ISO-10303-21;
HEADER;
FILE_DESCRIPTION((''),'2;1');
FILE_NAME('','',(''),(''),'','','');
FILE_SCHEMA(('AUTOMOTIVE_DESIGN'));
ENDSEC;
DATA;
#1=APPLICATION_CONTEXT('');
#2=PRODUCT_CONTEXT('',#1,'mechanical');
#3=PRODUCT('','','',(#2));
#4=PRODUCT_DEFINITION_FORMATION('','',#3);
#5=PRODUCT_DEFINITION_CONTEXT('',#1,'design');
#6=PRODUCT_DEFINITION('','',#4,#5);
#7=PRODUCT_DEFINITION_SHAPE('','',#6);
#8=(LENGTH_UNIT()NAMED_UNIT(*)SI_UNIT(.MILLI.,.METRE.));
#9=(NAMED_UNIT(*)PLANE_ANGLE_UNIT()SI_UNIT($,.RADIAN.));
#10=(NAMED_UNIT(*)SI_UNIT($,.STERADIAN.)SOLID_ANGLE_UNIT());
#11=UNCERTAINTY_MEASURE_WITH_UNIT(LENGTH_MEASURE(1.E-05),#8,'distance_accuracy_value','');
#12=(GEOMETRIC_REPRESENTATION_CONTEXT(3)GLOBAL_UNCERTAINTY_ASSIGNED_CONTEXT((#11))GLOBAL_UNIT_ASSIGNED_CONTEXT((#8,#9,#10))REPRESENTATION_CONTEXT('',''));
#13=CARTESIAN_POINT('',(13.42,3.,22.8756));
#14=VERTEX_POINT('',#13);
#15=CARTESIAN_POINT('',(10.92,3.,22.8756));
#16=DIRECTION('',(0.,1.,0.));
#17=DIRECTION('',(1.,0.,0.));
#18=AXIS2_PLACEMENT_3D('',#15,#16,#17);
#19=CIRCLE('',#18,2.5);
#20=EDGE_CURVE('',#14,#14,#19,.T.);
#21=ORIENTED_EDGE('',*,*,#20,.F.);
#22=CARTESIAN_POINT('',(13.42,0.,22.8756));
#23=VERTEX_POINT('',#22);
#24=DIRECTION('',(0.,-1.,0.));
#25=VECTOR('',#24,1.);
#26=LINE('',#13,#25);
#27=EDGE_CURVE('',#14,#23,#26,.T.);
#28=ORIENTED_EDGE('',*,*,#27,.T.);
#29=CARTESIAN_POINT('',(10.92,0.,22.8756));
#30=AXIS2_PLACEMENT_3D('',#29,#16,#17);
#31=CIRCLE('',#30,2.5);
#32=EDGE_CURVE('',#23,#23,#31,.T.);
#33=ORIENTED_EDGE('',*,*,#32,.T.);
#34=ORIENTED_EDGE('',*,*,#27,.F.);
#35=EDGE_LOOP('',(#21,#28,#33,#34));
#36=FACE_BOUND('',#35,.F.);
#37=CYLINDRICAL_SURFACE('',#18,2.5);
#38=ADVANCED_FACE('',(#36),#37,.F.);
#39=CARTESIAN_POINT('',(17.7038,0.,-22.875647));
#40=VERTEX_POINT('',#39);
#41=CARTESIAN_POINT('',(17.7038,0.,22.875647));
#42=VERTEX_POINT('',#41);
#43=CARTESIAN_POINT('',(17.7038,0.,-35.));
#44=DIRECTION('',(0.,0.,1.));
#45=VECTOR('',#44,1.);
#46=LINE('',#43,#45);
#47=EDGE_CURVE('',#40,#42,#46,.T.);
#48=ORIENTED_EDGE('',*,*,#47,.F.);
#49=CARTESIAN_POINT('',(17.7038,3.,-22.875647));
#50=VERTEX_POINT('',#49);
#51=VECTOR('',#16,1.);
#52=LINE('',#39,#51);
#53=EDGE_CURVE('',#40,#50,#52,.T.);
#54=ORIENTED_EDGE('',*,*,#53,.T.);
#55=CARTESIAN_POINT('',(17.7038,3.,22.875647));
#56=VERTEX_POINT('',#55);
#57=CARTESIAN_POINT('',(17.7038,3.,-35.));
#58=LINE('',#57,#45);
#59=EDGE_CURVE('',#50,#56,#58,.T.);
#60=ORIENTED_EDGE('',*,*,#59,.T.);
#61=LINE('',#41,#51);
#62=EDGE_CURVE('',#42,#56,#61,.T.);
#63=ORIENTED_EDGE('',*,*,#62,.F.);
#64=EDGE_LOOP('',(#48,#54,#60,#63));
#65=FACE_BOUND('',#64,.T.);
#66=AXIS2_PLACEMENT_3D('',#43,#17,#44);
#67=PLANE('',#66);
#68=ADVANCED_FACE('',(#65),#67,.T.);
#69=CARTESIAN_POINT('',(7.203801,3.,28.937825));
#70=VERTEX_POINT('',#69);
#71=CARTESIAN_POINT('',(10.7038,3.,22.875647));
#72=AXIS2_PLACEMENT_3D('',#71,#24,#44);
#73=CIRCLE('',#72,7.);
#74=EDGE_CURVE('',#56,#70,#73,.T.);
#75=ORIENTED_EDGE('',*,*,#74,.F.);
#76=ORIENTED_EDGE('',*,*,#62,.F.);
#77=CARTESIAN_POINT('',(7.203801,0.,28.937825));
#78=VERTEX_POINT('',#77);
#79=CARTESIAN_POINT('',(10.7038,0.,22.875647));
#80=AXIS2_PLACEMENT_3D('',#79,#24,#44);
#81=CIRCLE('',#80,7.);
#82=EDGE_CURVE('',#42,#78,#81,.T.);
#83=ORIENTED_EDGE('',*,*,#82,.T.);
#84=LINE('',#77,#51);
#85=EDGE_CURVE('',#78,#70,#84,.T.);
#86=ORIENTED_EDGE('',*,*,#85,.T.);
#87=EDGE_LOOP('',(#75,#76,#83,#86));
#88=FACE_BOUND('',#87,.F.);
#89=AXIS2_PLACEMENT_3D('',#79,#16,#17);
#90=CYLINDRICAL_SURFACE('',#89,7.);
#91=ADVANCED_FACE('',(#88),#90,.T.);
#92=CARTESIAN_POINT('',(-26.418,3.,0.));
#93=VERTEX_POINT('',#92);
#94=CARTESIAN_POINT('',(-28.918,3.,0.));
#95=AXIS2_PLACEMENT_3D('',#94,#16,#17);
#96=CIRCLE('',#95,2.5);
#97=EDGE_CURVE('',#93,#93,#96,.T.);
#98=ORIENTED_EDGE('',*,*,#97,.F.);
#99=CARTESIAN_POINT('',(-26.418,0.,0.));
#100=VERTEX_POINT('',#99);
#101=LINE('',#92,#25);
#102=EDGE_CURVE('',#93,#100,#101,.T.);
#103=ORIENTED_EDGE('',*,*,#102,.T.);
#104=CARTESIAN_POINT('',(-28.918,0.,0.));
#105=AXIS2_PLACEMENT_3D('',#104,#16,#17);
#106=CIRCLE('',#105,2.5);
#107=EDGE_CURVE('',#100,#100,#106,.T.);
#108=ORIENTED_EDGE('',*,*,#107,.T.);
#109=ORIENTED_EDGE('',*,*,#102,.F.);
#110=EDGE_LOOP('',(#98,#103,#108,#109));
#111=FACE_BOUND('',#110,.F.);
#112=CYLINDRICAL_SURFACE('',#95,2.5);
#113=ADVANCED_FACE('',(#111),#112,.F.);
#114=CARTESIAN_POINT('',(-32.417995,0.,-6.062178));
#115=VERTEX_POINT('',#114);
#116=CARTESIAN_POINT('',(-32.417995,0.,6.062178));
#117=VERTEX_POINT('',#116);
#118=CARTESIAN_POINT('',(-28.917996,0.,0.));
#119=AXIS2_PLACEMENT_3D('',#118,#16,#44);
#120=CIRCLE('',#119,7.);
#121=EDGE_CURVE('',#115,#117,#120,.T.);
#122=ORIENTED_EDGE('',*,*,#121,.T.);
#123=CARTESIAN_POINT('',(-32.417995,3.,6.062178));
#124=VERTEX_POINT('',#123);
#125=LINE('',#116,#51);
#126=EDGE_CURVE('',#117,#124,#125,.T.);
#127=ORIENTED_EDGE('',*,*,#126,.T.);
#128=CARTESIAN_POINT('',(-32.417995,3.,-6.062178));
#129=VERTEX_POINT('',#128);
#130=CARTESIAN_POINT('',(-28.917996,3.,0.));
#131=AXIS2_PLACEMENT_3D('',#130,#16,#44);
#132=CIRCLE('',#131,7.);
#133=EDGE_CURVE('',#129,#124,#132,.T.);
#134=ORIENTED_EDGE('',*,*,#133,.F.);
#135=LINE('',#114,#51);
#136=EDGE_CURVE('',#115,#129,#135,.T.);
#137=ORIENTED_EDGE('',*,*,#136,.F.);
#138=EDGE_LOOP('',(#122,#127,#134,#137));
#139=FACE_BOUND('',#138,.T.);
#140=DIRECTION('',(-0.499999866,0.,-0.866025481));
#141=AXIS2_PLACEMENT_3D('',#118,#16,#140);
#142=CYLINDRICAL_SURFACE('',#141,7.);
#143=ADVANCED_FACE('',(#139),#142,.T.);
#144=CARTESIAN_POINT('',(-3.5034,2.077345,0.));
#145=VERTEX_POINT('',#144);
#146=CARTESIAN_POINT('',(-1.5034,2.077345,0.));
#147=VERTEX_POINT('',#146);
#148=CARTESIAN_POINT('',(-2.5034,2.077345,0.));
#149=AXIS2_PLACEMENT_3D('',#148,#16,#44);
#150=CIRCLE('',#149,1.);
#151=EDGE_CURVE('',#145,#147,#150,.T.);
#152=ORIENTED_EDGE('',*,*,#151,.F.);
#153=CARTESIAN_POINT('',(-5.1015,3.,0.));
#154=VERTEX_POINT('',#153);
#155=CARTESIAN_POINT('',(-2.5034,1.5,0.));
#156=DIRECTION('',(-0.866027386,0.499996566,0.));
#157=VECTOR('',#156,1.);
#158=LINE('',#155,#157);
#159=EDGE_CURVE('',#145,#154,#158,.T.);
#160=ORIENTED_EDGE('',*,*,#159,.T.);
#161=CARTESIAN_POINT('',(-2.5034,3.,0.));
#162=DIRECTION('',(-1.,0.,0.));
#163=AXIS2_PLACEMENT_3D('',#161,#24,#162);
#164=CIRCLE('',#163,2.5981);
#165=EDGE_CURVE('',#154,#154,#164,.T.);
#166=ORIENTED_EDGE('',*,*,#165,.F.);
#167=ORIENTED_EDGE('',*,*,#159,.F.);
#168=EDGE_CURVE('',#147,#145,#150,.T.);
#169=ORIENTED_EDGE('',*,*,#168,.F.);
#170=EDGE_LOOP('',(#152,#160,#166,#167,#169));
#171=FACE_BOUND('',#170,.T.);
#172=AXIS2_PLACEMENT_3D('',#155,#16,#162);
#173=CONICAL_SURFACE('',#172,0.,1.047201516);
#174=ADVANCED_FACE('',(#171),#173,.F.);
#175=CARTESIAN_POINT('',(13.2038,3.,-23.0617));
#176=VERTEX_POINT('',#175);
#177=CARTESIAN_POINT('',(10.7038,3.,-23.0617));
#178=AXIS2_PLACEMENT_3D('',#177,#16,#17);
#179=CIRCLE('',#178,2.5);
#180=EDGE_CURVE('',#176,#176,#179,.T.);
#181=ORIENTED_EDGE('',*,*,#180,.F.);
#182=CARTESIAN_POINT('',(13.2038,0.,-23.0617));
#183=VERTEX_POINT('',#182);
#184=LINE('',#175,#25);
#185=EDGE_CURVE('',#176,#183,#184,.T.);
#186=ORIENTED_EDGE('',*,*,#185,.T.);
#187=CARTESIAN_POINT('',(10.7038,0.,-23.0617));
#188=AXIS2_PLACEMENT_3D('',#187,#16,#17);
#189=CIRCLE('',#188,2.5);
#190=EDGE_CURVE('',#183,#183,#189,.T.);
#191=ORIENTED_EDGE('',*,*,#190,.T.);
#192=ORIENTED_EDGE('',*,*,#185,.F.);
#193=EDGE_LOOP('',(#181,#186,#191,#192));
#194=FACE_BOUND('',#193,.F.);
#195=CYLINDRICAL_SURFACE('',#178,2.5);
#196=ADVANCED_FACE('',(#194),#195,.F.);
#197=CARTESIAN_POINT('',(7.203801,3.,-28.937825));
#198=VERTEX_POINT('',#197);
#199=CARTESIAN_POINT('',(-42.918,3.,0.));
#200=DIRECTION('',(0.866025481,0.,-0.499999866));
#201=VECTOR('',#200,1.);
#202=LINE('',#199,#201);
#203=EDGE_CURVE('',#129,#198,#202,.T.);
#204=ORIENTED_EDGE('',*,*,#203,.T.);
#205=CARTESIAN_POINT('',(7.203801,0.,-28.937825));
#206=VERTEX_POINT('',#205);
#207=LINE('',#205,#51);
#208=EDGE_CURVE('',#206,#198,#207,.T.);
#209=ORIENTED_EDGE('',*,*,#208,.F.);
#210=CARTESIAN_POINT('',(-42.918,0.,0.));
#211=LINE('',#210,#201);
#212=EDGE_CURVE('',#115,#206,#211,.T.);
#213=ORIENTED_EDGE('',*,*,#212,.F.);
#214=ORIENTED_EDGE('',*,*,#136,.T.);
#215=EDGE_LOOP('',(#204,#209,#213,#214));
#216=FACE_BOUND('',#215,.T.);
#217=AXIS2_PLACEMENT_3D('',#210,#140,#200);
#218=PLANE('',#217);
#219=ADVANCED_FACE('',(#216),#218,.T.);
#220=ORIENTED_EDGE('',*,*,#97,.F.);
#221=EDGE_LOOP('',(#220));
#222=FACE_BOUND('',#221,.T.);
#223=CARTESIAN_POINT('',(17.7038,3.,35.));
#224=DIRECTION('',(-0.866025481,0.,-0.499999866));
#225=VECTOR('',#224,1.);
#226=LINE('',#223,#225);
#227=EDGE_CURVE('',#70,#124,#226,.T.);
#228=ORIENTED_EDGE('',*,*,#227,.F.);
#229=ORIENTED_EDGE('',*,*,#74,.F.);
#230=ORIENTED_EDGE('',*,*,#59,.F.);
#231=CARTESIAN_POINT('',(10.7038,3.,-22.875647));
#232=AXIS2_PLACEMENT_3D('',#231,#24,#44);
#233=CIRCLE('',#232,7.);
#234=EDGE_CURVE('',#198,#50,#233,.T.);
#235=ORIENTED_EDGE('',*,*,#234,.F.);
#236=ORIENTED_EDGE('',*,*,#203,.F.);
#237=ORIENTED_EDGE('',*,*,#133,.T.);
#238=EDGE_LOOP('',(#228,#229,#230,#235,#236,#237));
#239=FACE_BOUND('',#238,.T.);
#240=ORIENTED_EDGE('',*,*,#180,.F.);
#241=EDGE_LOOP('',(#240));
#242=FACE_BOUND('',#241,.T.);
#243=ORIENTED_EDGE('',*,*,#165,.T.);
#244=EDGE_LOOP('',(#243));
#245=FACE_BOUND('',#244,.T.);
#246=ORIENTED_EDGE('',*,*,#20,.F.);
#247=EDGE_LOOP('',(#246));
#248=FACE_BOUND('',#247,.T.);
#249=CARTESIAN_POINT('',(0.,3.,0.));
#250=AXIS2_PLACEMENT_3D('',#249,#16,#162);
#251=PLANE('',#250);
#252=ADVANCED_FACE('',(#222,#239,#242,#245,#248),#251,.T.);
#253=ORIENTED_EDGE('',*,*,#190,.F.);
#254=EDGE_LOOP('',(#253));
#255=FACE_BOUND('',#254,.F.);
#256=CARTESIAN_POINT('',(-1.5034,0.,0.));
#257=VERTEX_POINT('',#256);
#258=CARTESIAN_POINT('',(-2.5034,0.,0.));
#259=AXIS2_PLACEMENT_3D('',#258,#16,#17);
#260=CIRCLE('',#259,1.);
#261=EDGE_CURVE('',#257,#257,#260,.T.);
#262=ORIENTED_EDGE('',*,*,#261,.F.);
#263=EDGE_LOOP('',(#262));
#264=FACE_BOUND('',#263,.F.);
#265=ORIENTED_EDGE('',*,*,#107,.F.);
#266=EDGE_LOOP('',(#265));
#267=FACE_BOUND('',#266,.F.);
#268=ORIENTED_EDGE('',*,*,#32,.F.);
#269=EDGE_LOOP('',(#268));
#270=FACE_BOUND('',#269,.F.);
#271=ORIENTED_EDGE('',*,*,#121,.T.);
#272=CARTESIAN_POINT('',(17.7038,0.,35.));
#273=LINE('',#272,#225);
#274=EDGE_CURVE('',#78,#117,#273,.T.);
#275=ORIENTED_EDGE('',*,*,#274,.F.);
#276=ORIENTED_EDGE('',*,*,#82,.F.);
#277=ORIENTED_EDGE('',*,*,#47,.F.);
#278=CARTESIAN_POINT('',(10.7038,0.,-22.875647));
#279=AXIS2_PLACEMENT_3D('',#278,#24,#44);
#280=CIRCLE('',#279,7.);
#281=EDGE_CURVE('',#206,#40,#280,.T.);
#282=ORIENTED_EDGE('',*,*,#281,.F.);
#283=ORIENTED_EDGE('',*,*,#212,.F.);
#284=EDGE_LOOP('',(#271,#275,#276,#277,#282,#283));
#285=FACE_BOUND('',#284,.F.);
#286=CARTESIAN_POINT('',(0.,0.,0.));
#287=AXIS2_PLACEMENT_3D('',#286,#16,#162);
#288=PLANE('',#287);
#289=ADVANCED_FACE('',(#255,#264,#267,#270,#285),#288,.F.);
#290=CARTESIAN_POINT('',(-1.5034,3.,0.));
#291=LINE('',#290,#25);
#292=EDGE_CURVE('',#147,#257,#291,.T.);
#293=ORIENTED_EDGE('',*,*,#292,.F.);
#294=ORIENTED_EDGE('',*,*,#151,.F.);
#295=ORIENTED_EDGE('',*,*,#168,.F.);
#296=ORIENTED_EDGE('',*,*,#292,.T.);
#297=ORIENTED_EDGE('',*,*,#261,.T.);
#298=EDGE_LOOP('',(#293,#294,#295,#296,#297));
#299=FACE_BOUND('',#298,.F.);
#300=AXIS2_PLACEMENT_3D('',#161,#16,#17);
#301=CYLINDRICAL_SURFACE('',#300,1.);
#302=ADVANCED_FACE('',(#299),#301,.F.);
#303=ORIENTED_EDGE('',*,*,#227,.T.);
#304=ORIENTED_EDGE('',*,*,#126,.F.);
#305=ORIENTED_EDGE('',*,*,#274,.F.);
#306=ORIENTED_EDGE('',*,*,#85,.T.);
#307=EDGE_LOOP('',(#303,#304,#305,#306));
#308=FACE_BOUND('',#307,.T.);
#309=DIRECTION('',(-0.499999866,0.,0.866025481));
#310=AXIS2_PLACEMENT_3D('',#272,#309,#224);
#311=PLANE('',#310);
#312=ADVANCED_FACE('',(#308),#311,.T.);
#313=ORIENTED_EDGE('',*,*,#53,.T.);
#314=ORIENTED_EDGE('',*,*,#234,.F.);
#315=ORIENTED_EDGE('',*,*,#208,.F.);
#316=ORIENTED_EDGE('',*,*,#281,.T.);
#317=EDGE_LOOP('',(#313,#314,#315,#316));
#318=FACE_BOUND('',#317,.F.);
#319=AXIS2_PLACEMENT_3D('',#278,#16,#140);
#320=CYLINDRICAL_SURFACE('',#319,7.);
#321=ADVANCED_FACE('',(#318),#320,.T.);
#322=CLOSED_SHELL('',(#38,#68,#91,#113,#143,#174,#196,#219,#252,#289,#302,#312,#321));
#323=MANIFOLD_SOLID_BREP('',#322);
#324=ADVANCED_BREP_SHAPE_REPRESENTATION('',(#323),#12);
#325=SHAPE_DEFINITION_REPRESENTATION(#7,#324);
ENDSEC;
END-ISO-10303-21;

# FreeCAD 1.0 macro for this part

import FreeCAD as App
import Part
import Sketcher

V = App.Vector
Q = App.Units.Quantity


def edges_at(feature, points):
    """Names of the edges that pass closest to the given points."""
    edges = feature.Shape.Edges
    near = lambda p: min(range(len(edges)), key=lambda i: edges[i].distToShape(Part.Vertex(*p))[0])
    return sorted({f"Edge{near(p) + 1}" for p in points})


def add_polygon(sketch, points):
    """Adds a closed chain of lines whose ends are joined by coincident constraints."""
    first, n = sketch.GeometryCount, len(points)
    for a, b in zip(points, points[1:] + points[:1]):
        sketch.addGeometry(Part.LineSegment(App.Vector(*a, 0), App.Vector(*b, 0)), False)
    for i in range(n):
        sketch.addConstraint(Sketcher.Constraint("Coincident", first + i, 2, first + (i + 1) % n, 1))

doc = App.newDocument("Part")
body = doc.addObject("PartDesign::Body", "Body")

sketch1 = body.newObject("Sketcher::SketchObject", "Sketch")
sketch1.AttachmentSupport = (doc.getObject("XZ_Plane"), [""])
sketch1.MapMode = "FlatFace"
add_polygon(sketch1, [(17.7038, -35), (-42.918, 0), (17.7038, 35)])
sketch1.addConstraint([
    Sketcher.Constraint("Vertical", 2),
    Sketcher.Constraint("PointOnObject", 0, 2, -1),
    Sketcher.Constraint("Equal", 0, 1),
    Sketcher.Constraint("DistanceY", 2, 2, 2, 1, Q("70 mm")),
    Sketcher.Constraint("Distance", 0, Q("70 mm")),
    Sketcher.Constraint("DistanceX", 0, 2, -1, 1, Q("42.918 mm")),
])
pad1 = body.newObject("PartDesign::Pad", "Pad")
pad1.Profile = sketch1
pad1.Length = 3
pad1.Reversed = True
doc.recompute()

fillet = body.newObject("PartDesign::Fillet", "Fillet")
fillet.Base = (pad1, edges_at(pad1, [(17.704, 1.5, 35), (17.704, 1.5, -35), (-42.918, 1.5, 0)]))
fillet.Radius = 7

sketch2 = body.newObject("Sketcher::SketchObject", "Sketch001")
sketch2.AttachmentSupport = (doc.getObject("XZ_Plane"), [""])
sketch2.MapMode = "FlatFace"
sketch2.AttachmentOffset = App.Placement(V(0, 0, -3), App.Rotation())
sketch2.addGeometry([
    Part.Circle(V(10.92, 22.8756, 0), V(0, 0, 1), 2.5),
    Part.Circle(V(-28.918, 0, 0), V(0, 0, 1), 2.5),
    Part.Circle(V(10.7038, -23.0617, 0), V(0, 0, 1), 2.5),
], False)
sketch2.addConstraint([
    Sketcher.Constraint("Equal", 0, 1),
    Sketcher.Constraint("Equal", 1, 2),
    Sketcher.Constraint("PointOnObject", 1, 3, -1),
    Sketcher.Constraint("Diameter", 0, Q("5 mm")),
    Sketcher.Constraint("DistanceX", -1, 1, 0, 3, Q("10.92 mm")),
    Sketcher.Constraint("DistanceX", 1, 3, -1, 1, Q("28.918 mm")),
    Sketcher.Constraint("DistanceY", -1, 1, 0, 3, Q("22.8756 mm")),
    Sketcher.Constraint("DistanceX", -1, 1, 2, 3, Q("10.7038 mm")),
    Sketcher.Constraint("DistanceY", 2, 3, -1, 1, Q("23.0617 mm")),
])
pocket1 = body.newObject("PartDesign::Pocket", "Pocket")
pocket1.Profile = sketch2
pocket1.Length = 3
pocket1.Reversed = True

sketch3 = body.newObject("Sketcher::SketchObject", "Sketch002")
sketch3.AttachmentSupport = (doc.getObject("XZ_Plane"), [""])
sketch3.MapMode = "FlatFace"
sketch3.AttachmentOffset = App.Placement(V(0, 0, -3), App.Rotation())
sketch3.addGeometry(Part.Circle(V(-2.5034, 0, 0), V(0, 0, 1), 1), False)
sketch3.addConstraint([
    Sketcher.Constraint("PointOnObject", 0, 3, -1),
    Sketcher.Constraint("Diameter", 0, Q("2 mm")),
    Sketcher.Constraint("DistanceX", 0, 3, -1, 1, Q("2.5034 mm")),
])
pocket2 = body.newObject("PartDesign::Pocket", "Pocket001")
pocket2.Profile = sketch3
pocket2.Length = 3
pocket2.Reversed = True

sketch4 = body.newObject("Sketcher::SketchObject", "Sketch003")
sketch4.AttachmentSupport = (doc.getObject("XY_Plane"), [""])
sketch4.MapMode = "FlatFace"
add_polygon(sketch4, [(-2.5034, 3), (-5.1015, 3), (-2.5034, 1.5)])
sketch4.addGeometry(Part.LineSegment(V(-2.5034, 3, 0), V(-2.5034, 1.5, 0)), True)
sketch4.addConstraint([
    Sketcher.Constraint("Horizontal", 0),
    Sketcher.Constraint("Vertical", 2),
    Sketcher.Constraint("Vertical", 3),
    Sketcher.Constraint("Coincident", 3, 1, 2, 2),
    Sketcher.Constraint("Equal", 2, 3),
    Sketcher.Constraint("DistanceY", 2, 1, 2, 2, Q("1.5 mm")),
    Sketcher.Constraint("DistanceY", -1, 1, 1, 2, Q("1.5 mm")),
    Sketcher.Constraint("Angle", 1, Q("-29.9998 deg")),
    Sketcher.Constraint("DistanceX", 0, 2, -1, 1, Q("5.1015 mm")),
])
groove = body.newObject("PartDesign::Groove", "Groove")
groove.Profile = sketch4
groove.ReferenceAxis = (sketch4, ["Axis0"])
groove.Angle = 360

doc.recompute()
